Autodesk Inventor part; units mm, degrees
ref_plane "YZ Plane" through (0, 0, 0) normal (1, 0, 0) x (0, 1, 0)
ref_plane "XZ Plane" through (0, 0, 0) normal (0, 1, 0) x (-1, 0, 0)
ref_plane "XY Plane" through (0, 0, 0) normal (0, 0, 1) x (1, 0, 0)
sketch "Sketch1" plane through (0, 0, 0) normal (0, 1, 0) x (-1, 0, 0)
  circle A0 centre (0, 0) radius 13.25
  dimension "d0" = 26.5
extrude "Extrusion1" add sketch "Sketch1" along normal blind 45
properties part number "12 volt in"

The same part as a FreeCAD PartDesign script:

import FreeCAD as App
import Part
import Sketcher

doc = App.newDocument("Part")
body = doc.addObject("PartDesign::Body", "Body")

sketch1 = body.newObject("Sketcher::SketchObject", "Sketch")
sketch1.AttachmentSupport = (doc.getObject("XZ_Plane"), [""])
sketch1.MapMode = "FlatFace"
sketch1.addGeometry(Part.Circle(App.Vector(0, 0, 0), App.Vector(0, 0, 1), 13.25), False)
sketch1.addConstraint([
    Sketcher.Constraint("Coincident", 0, 3, -1, 1),
    Sketcher.Constraint("Diameter", 0, 26.5),
])
pad1 = body.newObject("PartDesign::Pad", "Pad")
pad1.Profile = sketch1
pad1.Length = 45
pad1.Reversed = True

doc.recompute()
